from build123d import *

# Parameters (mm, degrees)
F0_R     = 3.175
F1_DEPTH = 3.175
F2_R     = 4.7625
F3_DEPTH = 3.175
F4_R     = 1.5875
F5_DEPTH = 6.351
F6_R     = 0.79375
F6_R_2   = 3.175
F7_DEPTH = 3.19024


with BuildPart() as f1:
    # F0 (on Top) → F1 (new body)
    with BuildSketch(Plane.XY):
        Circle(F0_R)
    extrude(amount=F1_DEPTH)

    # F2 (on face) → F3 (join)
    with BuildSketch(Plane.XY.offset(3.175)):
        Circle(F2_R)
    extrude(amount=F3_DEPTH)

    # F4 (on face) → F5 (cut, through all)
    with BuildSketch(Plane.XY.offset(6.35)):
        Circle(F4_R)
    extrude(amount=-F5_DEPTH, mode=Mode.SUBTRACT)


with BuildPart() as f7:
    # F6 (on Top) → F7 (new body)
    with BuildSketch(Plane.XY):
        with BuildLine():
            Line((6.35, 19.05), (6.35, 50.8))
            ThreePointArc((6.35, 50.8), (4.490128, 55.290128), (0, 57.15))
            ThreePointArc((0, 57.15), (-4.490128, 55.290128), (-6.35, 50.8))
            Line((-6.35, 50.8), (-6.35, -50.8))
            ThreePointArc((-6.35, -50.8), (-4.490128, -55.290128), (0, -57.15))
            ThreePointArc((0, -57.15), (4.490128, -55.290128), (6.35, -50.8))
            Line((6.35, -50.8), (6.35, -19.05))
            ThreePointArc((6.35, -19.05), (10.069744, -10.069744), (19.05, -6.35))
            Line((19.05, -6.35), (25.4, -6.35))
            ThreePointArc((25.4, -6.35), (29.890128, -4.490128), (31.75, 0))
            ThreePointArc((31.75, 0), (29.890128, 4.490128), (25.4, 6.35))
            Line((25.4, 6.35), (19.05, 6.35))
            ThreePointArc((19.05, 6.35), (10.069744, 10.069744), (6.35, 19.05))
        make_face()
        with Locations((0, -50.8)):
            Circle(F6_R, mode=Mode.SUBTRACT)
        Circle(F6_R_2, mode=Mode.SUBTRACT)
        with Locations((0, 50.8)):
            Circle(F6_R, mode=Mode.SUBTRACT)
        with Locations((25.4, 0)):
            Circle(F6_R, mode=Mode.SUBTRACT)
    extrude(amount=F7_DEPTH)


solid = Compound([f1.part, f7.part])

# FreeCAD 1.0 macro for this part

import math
import FreeCAD as App
import Part
import Sketcher

V = App.Vector
Q = App.Units.Quantity

doc = App.newDocument("Part")
body = doc.addObject("PartDesign::Body", "Body")

# Sketch on XY plane
sketch1 = body.newObject("Sketcher::SketchObject", "Sketch")
sketch1.AttachmentSupport = (doc.getObject("XY_Plane"), [""])
sketch1.MapMode = "FlatFace"
sketch1.addGeometry(Part.Circle(V(0, 0, 0), V(0, 0, 1), 3.2), False)
sketch1.addConstraint([
    Sketcher.Constraint("Coincident", 0, 3, -1, 1),
    Sketcher.Constraint("Diameter", 0, Q("0.25 in")),
])
pad1 = body.newObject("PartDesign::Pad", "Pad")
pad1.Profile = sketch1
pad1.Length = Q("0.125 in")

# Sketch on XY plane
sketch2 = body.newObject("Sketcher::SketchObject", "Sketch001")
sketch2.AttachmentSupport = (doc.getObject("XY_Plane"), [""])
sketch2.MapMode = "FlatFace"
sketch2.AttachmentOffset = App.Placement(V(0, 0, 0.125 * 25.4), App.Rotation())
sketch2.addGeometry(Part.Circle(V(0, 0, 0), V(0, 0, 1), 4.8), False)
sketch2.addConstraint([
    Sketcher.Constraint("Coincident", 0, 3, -1, 1),
    Sketcher.Constraint("Diameter", 0, Q("0.375 in")),
])
pad2 = body.newObject("PartDesign::Pad", "Pad001")
pad2.Profile = sketch2
pad2.Length = Q("0.125 in")

# Sketch on XY plane
sketch3 = body.newObject("Sketcher::SketchObject", "Sketch002")
sketch3.AttachmentSupport = (doc.getObject("XY_Plane"), [""])
sketch3.MapMode = "FlatFace"
sketch3.AttachmentOffset = App.Placement(V(0, 0, 0.25 * 25.4), App.Rotation())
sketch3.addGeometry(Part.Circle(V(0, 0, 0), V(0, 0, 1), 1.6), False)
sketch3.addConstraint([
    Sketcher.Constraint("Coincident", 0, 3, -1, 1),
    Sketcher.Constraint("Diameter", 0, Q("0.125 in")),
])
pocket1 = body.newObject("PartDesign::Pocket", "Pocket")
pocket1.Profile = sketch3
pocket1.Type = "ThroughAll"
body2 = doc.addObject("PartDesign::Body", "Body001")

# Sketch on XY plane
sketch4 = body2.newObject("Sketcher::SketchObject", "Sketch003")
sketch4.AttachmentSupport = (doc.getObject("XY_Plane001"), [""])
sketch4.MapMode = "FlatFace"
sketch4.addGeometry([
    Part.LineSegment(V(6.3, 19.1, 0), V(6.3, 50.8, 0)),  # 0
    Part.ArcOfCircle(Part.Circle(V(0, 50.8, 0), V(0, 0, 1), 6.4), math.radians(0), math.radians(90)),  # 1
    Part.ArcOfCircle(Part.Circle(V(0, 50.8, 0), V(0, 0, 1), 6.4), math.radians(90), math.radians(180)),  # 2
    Part.LineSegment(V(-6.3, 50.8, 0), V(-6.3, -50.8, 0)),  # 3
    Part.ArcOfCircle(Part.Circle(V(0, -50.8, 0), V(0, 0, 1), 6.4), math.radians(-180), math.radians(-90)),  # 4
    Part.ArcOfCircle(Part.Circle(V(0, -50.8, 0), V(0, 0, 1), 6.4), math.radians(-90), math.radians(0)),  # 5
    Part.LineSegment(V(6.3, -50.8, 0), V(6.3, -19.1, 0)),  # 6
    Part.ArcOfCircle(Part.Circle(V(19.1, -19.1, 0), V(0, 0, 1), 12.7), math.radians(90), math.radians(180)),  # 7
    Part.LineSegment(V(19.1, -6.3, 0), V(25.4, -6.3, 0)),  # 8
    Part.ArcOfCircle(Part.Circle(V(25.4, 0, 0), V(0, 0, 1), 6.4), math.radians(-90), math.radians(0)),  # 9
    Part.ArcOfCircle(Part.Circle(V(25.4, 0, 0), V(0, 0, 1), 6.4), math.radians(0), math.radians(90)),  # 10
    Part.LineSegment(V(25.4, 6.3, 0), V(19.1, 6.3, 0)),  # 11
    Part.ArcOfCircle(Part.Circle(V(19.1, 19.1, 0), V(0, 0, 1), 12.7), math.radians(-180), math.radians(-90)),  # 12
    Part.Circle(V(0, -50.8, 0), V(0, 0, 1), 0.8),  # 13
    Part.Circle(V(0, 0, 0), V(0, 0, 1), 3.2),  # 14
    Part.Circle(V(0, 50.8, 0), V(0, 0, 1), 0.8),  # 15
    Part.Circle(V(25.4, 0, 0), V(0, 0, 1), 0.8),  # 16
], False)
sketch4.addConstraint([
    Sketcher.Constraint("Tangent", 0, 2, 1, 1),
    Sketcher.Constraint("Tangent", 1, 2, 2, 1),
    Sketcher.Constraint("Tangent", 2, 2, 3, 1),
    Sketcher.Constraint("Tangent", 3, 2, 4, 1),
    Sketcher.Constraint("Tangent", 4, 2, 5, 1),
    Sketcher.Constraint("Tangent", 5, 2, 6, 1),
    Sketcher.Constraint("Tangent", 6, 2, 7, 2),
    Sketcher.Constraint("Tangent", 7, 1, 8, 1),
    Sketcher.Constraint("Tangent", 8, 2, 9, 1),
    Sketcher.Constraint("Tangent", 9, 2, 10, 1),
    Sketcher.Constraint("Tangent", 10, 2, 11, 1),
    Sketcher.Constraint("Tangent", 11, 2, 12, 2),
    Sketcher.Constraint("Tangent", 12, 1, 0, 1),
    Sketcher.Constraint("Vertical", 0),
    Sketcher.Constraint("Vertical", 3),
    Sketcher.Constraint("Vertical", 6),
    Sketcher.Constraint("Horizontal", 8),
    Sketcher.Constraint("Horizontal", 11),
    Sketcher.Constraint("Coincident", 14, 3, -1, 1),
    Sketcher.Constraint("Coincident", 13, 3, 4, 3),
    Sketcher.Constraint("Coincident", 15, 3, 1, 3),
    Sketcher.Constraint("Coincident", 16, 3, 9, 3),
    Sketcher.Constraint("Equal", 1, 2),
    Sketcher.Constraint("Equal", 2, 4),
    Sketcher.Constraint("Equal", 4, 5),
    Sketcher.Constraint("Equal", 5, 9),
    Sketcher.Constraint("Equal", 9, 10),
    Sketcher.Constraint("Equal", 7, 12),
    Sketcher.Constraint("Equal", 13, 15),
    Sketcher.Constraint("Equal", 15, 16),
    Sketcher.Constraint("Symmetric", 1, 3, 4, 3, -1, 1),
    Sketcher.Constraint("PointOnObject", 9, 3, -1),
    Sketcher.Constraint("PointOnObject", 1, 2, -2),
    Sketcher.Constraint("PointOnObject", 4, 2, -2),
    Sketcher.Constraint("PointOnObject", 9, 2, -1),
    Sketcher.Constraint("Radius", 7, Q("0.5 in")),
    Sketcher.Constraint("Diameter", 14, Q("0.25 in")),
    Sketcher.Constraint("DistanceY", 3, 2, 3, 1, Q("4 in")),
    Sketcher.Constraint("Radius", 1, Q("0.25 in")),
    Sketcher.Constraint("Diameter", 13, Q("0.0625 in")),
    Sketcher.Constraint("DistanceX", -1, 1, 9, 3, Q("1 in")),
])
pad3 = body2.newObject("PartDesign::Pad", "Pad002")
pad3.Profile = sketch4
pad3.Length = Q("0.1256 in")

doc.recompute()
